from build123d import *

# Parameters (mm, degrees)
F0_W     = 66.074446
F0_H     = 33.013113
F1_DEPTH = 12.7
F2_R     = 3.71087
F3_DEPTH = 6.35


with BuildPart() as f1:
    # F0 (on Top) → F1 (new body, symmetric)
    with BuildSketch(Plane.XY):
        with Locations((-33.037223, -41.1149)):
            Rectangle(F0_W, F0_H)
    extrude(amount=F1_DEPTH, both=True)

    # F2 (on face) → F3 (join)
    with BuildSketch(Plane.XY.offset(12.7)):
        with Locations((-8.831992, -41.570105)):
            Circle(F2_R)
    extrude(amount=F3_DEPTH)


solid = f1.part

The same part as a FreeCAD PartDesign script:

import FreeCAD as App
import Part
import Sketcher
Q = App.Units.Quantity

doc = App.newDocument("Part")
body = doc.addObject("PartDesign::Body", "Body")

sketch1 = body.newObject("Sketcher::SketchObject", "Sketch")
sketch1.AttachmentSupport = (doc.getObject("XY_Plane"), [""])
sketch1.MapMode = "FlatFace"
sketch1.addGeometry([
    Part.LineSegment(App.Vector(-66, -25, 0), App.Vector(-66, -58, 0)),
    Part.LineSegment(App.Vector(-66, -58, 0), App.Vector(0, -58, 0)),
    Part.LineSegment(App.Vector(0, -58, 0), App.Vector(0, -25, 0)),
    Part.LineSegment(App.Vector(0, -25, 0), App.Vector(-66, -25, 0)),
], False)
sketch1.addConstraint([
    Sketcher.Constraint("Coincident", 0, 2, 1, 1),
    Sketcher.Constraint("Coincident", 1, 2, 2, 1),
    Sketcher.Constraint("Coincident", 2, 2, 3, 1),
    Sketcher.Constraint("Coincident", 3, 2, 0, 1),
    Sketcher.Constraint("Vertical", 0),
    Sketcher.Constraint("Horizontal", 1),
    Sketcher.Constraint("Vertical", 2),
    Sketcher.Constraint("Horizontal", 3),
    Sketcher.Constraint("PointOnObject", 1, 2, -2),
    Sketcher.Constraint("DistanceX", 1, 1, 1, 2, 66.074446),
    Sketcher.Constraint("DistanceY", 0, 2, 0, 1, 33.013113),
    Sketcher.Constraint("DistanceY", 0, 2, -1, 1, 57.621457),
])
pad1 = body.newObject("PartDesign::Pad", "Pad")
pad1.Profile = sketch1
pad1.Length = Q("1 in")
pad1.Midplane = True

sketch2 = body.newObject("Sketcher::SketchObject", "Sketch001")
sketch2.AttachmentSupport = (doc.getObject("XY_Plane"), [""])
sketch2.MapMode = "FlatFace"
sketch2.AttachmentOffset = App.Placement(App.Vector(0, 0, 0.5 * 25.4), App.Rotation())
sketch2.addGeometry(Part.Circle(App.Vector(-8.8, -41.6, 0), App.Vector(0, 0, 1), 3.7), False)
sketch2.addConstraint([
    Sketcher.Constraint("Diameter", 0, 7.42174),
    Sketcher.Constraint("DistanceX", 0, 3, -1, 1, 8.831992),
    Sketcher.Constraint("DistanceY", 0, 3, -1, 1, 41.570105),
])
pad2 = body.newObject("PartDesign::Pad", "Pad001")
pad2.Profile = sketch2
pad2.Length = Q("0.25 in")

doc.recompute()
